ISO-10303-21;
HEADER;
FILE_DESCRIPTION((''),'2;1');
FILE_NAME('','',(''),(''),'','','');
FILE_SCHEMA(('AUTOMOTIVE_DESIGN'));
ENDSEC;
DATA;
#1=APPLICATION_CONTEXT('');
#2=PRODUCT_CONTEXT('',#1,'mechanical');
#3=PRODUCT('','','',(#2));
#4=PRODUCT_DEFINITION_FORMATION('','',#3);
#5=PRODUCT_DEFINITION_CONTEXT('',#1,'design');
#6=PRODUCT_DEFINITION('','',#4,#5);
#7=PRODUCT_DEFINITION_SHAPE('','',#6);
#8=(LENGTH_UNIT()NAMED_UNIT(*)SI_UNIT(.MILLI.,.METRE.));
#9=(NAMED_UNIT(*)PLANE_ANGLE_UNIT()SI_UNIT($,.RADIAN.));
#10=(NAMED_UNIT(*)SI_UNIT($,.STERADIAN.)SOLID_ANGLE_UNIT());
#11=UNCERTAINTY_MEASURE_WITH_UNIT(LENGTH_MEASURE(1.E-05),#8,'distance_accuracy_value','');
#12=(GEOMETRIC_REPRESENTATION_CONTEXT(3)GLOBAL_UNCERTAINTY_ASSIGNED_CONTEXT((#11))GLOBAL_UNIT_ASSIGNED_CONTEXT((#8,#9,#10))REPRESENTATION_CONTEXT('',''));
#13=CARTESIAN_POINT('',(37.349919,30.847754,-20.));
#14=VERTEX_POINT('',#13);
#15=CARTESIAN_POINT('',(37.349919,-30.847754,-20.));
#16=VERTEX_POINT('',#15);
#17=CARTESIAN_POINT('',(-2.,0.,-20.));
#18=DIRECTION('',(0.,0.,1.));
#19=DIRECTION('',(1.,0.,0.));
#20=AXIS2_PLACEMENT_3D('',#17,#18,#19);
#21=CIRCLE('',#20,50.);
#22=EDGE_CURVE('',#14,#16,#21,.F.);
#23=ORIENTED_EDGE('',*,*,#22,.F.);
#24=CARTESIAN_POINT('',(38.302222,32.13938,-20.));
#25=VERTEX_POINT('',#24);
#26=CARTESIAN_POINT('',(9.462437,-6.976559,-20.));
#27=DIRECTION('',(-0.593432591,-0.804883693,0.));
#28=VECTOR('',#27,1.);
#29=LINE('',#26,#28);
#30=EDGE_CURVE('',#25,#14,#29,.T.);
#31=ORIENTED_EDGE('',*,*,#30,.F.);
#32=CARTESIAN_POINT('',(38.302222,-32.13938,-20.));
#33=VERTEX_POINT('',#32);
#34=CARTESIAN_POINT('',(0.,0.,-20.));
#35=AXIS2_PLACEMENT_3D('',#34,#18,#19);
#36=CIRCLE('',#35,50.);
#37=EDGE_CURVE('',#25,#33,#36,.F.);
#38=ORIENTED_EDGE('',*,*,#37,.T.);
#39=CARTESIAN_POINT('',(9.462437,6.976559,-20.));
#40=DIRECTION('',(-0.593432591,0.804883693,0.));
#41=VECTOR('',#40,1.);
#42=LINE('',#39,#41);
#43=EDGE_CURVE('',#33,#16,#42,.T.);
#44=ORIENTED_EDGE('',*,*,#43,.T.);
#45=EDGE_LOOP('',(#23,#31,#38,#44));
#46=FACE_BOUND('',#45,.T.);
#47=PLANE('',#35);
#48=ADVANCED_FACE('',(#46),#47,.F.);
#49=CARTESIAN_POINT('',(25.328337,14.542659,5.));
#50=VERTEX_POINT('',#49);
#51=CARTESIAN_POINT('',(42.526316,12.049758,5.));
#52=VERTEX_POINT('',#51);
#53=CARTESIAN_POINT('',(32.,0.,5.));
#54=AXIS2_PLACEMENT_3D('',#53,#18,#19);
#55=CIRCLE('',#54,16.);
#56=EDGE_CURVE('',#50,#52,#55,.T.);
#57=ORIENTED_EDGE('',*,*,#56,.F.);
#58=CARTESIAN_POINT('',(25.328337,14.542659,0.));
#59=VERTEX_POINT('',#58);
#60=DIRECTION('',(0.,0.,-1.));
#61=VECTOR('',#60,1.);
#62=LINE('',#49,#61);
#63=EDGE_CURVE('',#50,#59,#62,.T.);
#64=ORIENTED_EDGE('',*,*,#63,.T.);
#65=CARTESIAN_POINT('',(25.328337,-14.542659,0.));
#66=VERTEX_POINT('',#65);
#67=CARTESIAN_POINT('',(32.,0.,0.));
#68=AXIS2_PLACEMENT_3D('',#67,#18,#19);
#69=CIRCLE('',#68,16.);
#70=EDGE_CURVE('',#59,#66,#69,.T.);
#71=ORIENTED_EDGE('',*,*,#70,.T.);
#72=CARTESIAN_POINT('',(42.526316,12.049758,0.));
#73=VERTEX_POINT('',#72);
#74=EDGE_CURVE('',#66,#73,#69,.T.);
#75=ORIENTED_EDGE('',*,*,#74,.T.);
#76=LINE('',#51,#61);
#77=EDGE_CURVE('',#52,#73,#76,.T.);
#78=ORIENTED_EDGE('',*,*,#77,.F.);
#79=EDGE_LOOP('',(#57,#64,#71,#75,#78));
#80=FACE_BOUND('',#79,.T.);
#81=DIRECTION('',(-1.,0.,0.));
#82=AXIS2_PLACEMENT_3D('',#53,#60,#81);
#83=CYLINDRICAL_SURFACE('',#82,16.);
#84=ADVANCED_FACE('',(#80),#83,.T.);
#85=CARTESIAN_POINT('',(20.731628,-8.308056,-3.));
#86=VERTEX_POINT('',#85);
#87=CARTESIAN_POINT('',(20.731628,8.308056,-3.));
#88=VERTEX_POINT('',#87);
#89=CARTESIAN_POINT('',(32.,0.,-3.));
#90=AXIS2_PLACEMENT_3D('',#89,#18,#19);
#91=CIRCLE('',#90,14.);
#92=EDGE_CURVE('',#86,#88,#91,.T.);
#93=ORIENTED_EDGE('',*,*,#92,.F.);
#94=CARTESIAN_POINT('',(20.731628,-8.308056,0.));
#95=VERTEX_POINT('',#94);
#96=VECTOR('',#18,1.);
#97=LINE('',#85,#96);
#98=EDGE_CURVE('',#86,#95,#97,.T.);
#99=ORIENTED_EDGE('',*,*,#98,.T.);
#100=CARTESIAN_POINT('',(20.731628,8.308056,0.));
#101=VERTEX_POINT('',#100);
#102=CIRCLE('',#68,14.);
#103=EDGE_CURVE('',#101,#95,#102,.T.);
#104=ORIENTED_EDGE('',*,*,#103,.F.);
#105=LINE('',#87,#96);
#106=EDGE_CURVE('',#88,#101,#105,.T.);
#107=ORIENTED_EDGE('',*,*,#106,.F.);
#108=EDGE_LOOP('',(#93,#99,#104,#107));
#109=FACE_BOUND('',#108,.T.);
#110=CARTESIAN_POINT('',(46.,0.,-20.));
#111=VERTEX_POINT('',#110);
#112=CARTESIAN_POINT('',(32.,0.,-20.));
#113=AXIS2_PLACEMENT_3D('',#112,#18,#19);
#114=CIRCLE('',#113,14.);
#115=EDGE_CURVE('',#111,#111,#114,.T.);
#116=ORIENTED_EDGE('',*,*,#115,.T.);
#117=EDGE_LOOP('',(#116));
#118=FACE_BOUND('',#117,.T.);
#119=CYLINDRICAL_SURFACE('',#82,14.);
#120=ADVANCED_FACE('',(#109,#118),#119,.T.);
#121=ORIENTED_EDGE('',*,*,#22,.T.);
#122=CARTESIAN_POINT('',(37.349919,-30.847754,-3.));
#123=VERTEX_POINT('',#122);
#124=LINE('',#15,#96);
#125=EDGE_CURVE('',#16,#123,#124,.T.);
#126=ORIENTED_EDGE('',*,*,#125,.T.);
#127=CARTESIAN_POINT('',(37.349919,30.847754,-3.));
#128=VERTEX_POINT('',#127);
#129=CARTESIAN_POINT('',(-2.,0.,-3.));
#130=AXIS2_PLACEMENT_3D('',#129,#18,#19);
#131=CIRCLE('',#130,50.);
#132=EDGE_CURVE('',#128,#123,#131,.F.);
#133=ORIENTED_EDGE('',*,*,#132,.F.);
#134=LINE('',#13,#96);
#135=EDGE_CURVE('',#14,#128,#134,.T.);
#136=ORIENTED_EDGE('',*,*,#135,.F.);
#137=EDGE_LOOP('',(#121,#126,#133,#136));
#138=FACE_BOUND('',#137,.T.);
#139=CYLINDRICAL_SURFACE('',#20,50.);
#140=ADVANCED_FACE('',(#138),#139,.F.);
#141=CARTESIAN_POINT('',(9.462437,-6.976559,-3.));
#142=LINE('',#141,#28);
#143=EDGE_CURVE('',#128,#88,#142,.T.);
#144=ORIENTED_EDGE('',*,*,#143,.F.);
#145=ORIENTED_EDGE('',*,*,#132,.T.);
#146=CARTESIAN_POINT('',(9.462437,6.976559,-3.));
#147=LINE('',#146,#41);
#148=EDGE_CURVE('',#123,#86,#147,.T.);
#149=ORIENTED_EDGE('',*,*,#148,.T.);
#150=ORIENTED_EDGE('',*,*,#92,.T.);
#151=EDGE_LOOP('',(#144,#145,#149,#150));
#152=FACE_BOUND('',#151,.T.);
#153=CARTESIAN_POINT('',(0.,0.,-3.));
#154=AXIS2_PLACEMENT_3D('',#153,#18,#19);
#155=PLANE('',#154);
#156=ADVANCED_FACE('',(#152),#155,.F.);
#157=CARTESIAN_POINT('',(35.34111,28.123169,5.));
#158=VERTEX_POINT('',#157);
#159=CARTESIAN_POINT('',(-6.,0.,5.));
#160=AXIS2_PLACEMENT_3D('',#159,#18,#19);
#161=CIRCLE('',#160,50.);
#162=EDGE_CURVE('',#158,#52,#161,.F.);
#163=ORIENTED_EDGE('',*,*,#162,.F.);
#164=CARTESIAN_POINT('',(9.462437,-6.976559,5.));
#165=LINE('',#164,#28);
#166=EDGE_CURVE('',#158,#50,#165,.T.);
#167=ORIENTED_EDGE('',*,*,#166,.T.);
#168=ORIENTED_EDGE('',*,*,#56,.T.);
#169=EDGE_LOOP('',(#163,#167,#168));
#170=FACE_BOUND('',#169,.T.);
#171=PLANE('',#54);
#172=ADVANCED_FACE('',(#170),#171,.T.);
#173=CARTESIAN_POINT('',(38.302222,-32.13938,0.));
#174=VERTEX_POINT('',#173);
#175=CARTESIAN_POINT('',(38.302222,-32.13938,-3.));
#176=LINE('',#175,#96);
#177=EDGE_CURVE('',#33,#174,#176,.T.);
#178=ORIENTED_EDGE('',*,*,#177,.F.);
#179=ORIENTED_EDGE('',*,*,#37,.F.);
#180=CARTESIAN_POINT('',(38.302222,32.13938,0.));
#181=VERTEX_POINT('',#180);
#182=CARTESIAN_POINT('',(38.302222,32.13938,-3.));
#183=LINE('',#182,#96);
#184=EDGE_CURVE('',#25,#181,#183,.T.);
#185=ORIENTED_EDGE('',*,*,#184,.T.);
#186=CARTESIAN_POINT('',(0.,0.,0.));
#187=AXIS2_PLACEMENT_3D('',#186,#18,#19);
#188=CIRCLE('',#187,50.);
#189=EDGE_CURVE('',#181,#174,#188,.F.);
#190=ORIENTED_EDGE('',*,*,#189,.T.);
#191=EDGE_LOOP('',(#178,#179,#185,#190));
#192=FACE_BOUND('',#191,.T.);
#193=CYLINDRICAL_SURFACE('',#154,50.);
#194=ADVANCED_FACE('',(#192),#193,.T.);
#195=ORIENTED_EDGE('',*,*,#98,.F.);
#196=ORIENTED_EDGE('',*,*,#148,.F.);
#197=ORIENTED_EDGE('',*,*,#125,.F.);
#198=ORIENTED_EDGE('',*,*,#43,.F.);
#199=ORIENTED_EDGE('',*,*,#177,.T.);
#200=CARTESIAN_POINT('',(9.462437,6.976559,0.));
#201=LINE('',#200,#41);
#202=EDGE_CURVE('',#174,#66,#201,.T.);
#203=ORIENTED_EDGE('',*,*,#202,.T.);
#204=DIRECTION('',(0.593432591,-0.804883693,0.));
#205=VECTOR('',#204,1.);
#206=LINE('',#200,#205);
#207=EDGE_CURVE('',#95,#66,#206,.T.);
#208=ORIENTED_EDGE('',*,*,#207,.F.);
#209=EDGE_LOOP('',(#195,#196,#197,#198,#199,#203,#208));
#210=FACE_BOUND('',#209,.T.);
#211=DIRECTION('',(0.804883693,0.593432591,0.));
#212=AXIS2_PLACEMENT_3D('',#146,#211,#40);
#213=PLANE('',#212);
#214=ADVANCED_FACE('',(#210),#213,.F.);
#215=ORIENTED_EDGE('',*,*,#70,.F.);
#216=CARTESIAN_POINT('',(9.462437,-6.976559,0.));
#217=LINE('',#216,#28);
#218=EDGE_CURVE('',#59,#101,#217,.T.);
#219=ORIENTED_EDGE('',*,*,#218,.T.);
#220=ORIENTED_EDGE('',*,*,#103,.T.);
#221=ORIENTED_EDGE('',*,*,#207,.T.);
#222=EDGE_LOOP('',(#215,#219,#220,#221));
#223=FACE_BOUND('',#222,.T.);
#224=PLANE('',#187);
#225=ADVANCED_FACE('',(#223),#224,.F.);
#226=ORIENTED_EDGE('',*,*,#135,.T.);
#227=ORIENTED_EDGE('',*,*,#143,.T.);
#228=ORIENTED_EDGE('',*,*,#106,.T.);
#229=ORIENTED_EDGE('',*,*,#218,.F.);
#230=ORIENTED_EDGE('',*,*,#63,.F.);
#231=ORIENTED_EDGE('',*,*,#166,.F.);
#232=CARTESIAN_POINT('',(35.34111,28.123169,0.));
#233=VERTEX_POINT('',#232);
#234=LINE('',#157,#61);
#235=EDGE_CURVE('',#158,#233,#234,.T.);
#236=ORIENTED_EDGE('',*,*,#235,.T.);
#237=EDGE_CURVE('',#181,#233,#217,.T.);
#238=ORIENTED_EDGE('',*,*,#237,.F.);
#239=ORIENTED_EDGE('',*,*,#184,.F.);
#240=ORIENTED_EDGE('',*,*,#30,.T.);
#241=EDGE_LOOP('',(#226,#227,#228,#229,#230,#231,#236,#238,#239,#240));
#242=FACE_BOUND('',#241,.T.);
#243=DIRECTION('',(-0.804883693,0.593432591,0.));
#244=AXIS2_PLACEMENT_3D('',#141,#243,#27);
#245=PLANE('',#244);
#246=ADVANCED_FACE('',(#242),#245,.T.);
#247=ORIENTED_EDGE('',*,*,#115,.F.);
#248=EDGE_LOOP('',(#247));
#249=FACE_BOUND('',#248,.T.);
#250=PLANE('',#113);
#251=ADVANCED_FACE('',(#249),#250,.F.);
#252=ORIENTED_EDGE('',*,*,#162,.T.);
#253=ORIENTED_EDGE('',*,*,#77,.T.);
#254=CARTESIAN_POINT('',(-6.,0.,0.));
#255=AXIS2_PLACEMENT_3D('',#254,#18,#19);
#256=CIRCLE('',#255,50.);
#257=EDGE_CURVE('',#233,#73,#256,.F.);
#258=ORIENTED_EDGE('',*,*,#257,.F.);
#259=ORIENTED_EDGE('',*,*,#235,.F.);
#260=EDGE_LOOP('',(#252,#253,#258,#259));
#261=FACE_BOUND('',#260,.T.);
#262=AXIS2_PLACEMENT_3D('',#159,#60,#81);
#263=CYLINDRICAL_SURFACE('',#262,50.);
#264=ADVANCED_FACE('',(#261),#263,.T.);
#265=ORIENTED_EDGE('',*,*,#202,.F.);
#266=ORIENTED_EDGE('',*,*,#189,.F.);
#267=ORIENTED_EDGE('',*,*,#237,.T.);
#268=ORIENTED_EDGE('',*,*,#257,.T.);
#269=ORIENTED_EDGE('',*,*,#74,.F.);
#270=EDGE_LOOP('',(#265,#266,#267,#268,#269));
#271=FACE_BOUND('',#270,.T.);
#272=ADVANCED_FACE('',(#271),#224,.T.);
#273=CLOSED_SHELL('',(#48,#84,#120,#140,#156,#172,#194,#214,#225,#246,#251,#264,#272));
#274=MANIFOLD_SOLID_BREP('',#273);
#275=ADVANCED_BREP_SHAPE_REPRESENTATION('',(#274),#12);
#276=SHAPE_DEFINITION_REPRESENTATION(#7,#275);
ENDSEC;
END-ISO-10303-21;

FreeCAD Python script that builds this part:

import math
import FreeCAD as App
import Part
import Sketcher

V = App.Vector
Q = App.Units.Quantity

doc = App.newDocument("Part")
params = doc.addObject("Spreadsheet::Sheet", "Params")
for row, (alias, value) in enumerate([
    ("sketch1_diameter", "28 mm"),
    ("pad1_length", "5 mm"),
    ("sketch2_radius", "14 mm"),
    ("sketch2_radius2", "50 mm"),
    ("pad2_length", "3 mm"),
    ("sketch3_radius", "50 mm"),
    ("pad3_length", "20 mm"),
    ("sketch4_diameter", "28 mm"),
    ("pad4_length", "20 mm"),
    ("sketch5_radius", "16 mm"),
    ("sketch5_radius2", "50 mm"),
    ("pad5_length", "5 mm"),
], start=1):
    params.set(f"A{row}", alias)
    params.set(f"B{row}", "=" + value)
    params.setAlias(f"B{row}", alias)

body = doc.addObject("PartDesign::Body", "Body")

sketch1 = doc.addObject("Sketcher::SketchObject", "Sketch")
body.addObject(sketch1)
sketch1.AttachmentSupport = (doc.XY_Plane, [""])
sketch1.MapMode = "FlatFace"
sketch1.addGeometry(Part.Circle(V(32, 0, 0), V(0, 0, 1), 14), False)
sketch1.addConstraint(Sketcher.Constraint("PointOnObject", 0, 3, -1))
sketch1.addConstraint(Sketcher.Constraint("Diameter", 0, Q("28 mm")))
sketch1.addConstraint(Sketcher.Constraint("DistanceX", -1, 1, 0, 3, Q("32 mm")))
sketch1.setExpression("Constraints[1]", "Params.sketch1_diameter")
pad1 = doc.addObject("PartDesign::Pad", "Pad")
body.addObject(pad1)
pad1.Profile = sketch1
pad1.setExpression("Length", "Params.pad1_length")

sketch2 = doc.addObject("Sketcher::SketchObject", "Sketch001")
body.addObject(sketch2)
sketch2.AttachmentSupport = (doc.XY_Plane, [""])
sketch2.MapMode = "FlatFace"
sketch2.AttachmentOffset = App.Placement(V(0, 0, -3), App.Rotation())
sketch2.addGeometry(Part.LineSegment(V(37.3, 30.8, 0), V(20.7, 8.3, 0)), False)
sketch2.addGeometry(Part.ArcOfCircle(Part.Circle(V(32, 0, 0), V(0, 0, 1), 14), math.radians(144), math.radians(216)), False)
sketch2.addGeometry(Part.LineSegment(V(20.7, -8.3, 0), V(37.3, -30.8, 0)), False)
sketch2.addGeometry(Part.LineSegment(V(37.3, -30.8, 0), V(38.3, -32.1, 0)), False)
sketch2.addGeometry(Part.ArcOfCircle(Part.Circle(V(0, 0, 0), V(0, 0, 1), 50), math.radians(-40), math.radians(40)), False)
sketch2.addGeometry(Part.LineSegment(V(38.3, 32.1, 0), V(37.3, 30.8, 0)), False)
sketch2.addConstraint(Sketcher.Constraint("Tangent", 0, 2, 1, 1))
sketch2.addConstraint(Sketcher.Constraint("Tangent", 1, 2, 2, 1))
sketch2.addConstraint(Sketcher.Constraint("Coincident", 2, 2, 3, 1))
sketch2.addConstraint(Sketcher.Constraint("Coincident", 3, 2, 4, 1))
sketch2.addConstraint(Sketcher.Constraint("Coincident", 4, 2, 5, 1))
sketch2.addConstraint(Sketcher.Constraint("Coincident", 5, 2, 0, 1))
sketch2.addConstraint(Sketcher.Constraint("Coincident", 4, 3, -1, 1))
sketch2.addConstraint(Sketcher.Constraint("Symmetric", 0, 2, 1, 2, -1))
sketch2.addConstraint(Sketcher.Constraint("Parallel", 2, 3))
sketch2.addConstraint(Sketcher.Constraint("Parallel", 0, 5))
sketch2.addConstraint(Sketcher.Constraint("Vertical", 2, 2, 5, 2))
sketch2.addConstraint(Sketcher.Constraint("Radius", 1, Q("14 mm")))
sketch2.addConstraint(Sketcher.Constraint("Radius", 4, Q("50 mm")))
sketch2.addConstraint(Sketcher.Constraint("DistanceX", -1, 1, 1, 3, Q("32 mm")))
sketch2.addConstraint(Sketcher.Constraint("Distance", 0, Q("28.00367 mm")))
sketch2.addConstraint(Sketcher.Constraint("DistanceX", -1, 1, 0, 2, Q("20.731628 mm")))
sketch2.setExpression("Constraints[11]", "Params.sketch2_radius")
sketch2.setExpression("Constraints[12]", "Params.sketch2_radius2")
pad2 = doc.addObject("PartDesign::Pad", "Pad001")
body.addObject(pad2)
pad2.Profile = sketch2
pad2.setExpression("Length", "Params.pad2_length")

sketch3 = doc.addObject("Sketcher::SketchObject", "Sketch002")
body.addObject(sketch3)
sketch3.AttachmentSupport = (doc.XY_Plane, [""])
sketch3.MapMode = "FlatFace"
sketch3.AttachmentOffset = App.Placement(V(0, 0, -20), App.Rotation())
sketch3.addGeometry(Part.ArcOfCircle(Part.Circle(V(0, 0, 0), V(0, 0, 1), 50), math.radians(-40), math.radians(40)), False)
sketch3.addGeometry(Part.LineSegment(V(38.3, 32.1, 0), V(37.3, 30.8, 0)), False)
sketch3.addGeometry(Part.ArcOfCircle(Part.Circle(V(-2, 0, 0), V(0, 0, 1), 50), math.radians(-38), math.radians(38)), False)
sketch3.addGeometry(Part.LineSegment(V(37.3, -30.8, 0), V(38.3, -32.1, 0)), False)
sketch3.addConstraint(Sketcher.Constraint("Coincident", 0, 2, 1, 1))
sketch3.addConstraint(Sketcher.Constraint("Coincident", 1, 2, 2, 2))
sketch3.addConstraint(Sketcher.Constraint("Coincident", 2, 1, 3, 1))
sketch3.addConstraint(Sketcher.Constraint("Coincident", 3, 2, 0, 1))
sketch3.addConstraint(Sketcher.Constraint("Coincident", 0, 3, -1, 1))
sketch3.addConstraint(Sketcher.Constraint("Equal", 0, 2))
sketch3.addConstraint(Sketcher.Constraint("Symmetric", 1, 2, 2, 1, -1))
sketch3.addConstraint(Sketcher.Constraint("Vertical", 0, 2, 3, 2))
sketch3.addConstraint(Sketcher.Constraint("Radius", 0, Q("50 mm")))
sketch3.addConstraint(Sketcher.Constraint("DistanceX", 2, 3, -1, 1, Q("2 mm")))
sketch3.addConstraint(Sketcher.Constraint("DistanceY", -1, 1, 0, 2, Q("32.13938 mm")))
sketch3.addConstraint(Sketcher.Constraint("DistanceX", -1, 1, 1, 2, Q("37.349919 mm")))
sketch3.setExpression("Constraints[8]", "Params.sketch3_radius")
pad3 = doc.addObject("PartDesign::Pad", "Pad002")
body.addObject(pad3)
pad3.Profile = sketch3
pad3.setExpression("Length", "Params.pad3_length")

sketch4 = doc.addObject("Sketcher::SketchObject", "Sketch003")
body.addObject(sketch4)
sketch4.AttachmentSupport = (doc.XY_Plane, [""])
sketch4.MapMode = "FlatFace"
sketch4.AttachmentOffset = App.Placement(V(0, 0, -20), App.Rotation())
sketch4.addGeometry(Part.Circle(V(32, 0, 0), V(0, 0, 1), 14), False)
sketch4.addConstraint(Sketcher.Constraint("PointOnObject", 0, 3, -1))
sketch4.addConstraint(Sketcher.Constraint("Diameter", 0, Q("28 mm")))
sketch4.addConstraint(Sketcher.Constraint("DistanceX", -1, 1, 0, 3, Q("32 mm")))
sketch4.setExpression("Constraints[1]", "Params.sketch4_diameter")
pad4 = doc.addObject("PartDesign::Pad", "Pad003")
body.addObject(pad4)
pad4.Profile = sketch4
pad4.setExpression("Length", "Params.pad4_length")

sketch5 = doc.addObject("Sketcher::SketchObject", "Sketch004")
body.addObject(sketch5)
sketch5.AttachmentSupport = (doc.XY_Plane, [""])
sketch5.MapMode = "FlatFace"
sketch5.addGeometry(Part.ArcOfCircle(Part.Circle(V(32, 0, 0), V(0, 0, 1), 16), math.radians(-115), math.radians(0)), False)
sketch5.addGeometry(Part.ArcOfCircle(Part.Circle(V(32, 0, 0), V(0, 0, 1), 16), math.radians(0), math.radians(49)), False)
sketch5.addGeometry(Part.ArcOfCircle(Part.Circle(V(-6, 0, 0), V(0, 0, 1), 50), math.radians(14), math.radians(34)), False)
sketch5.addGeometry(Part.LineSegment(V(35, 28, 0), V(25, 15, 0)), False)
sketch5.addGeometry(Part.ArcOfCircle(Part.Circle(V(32, 0, 0), V(0, 0, 1), 16), math.radians(115), math.radians(245)), False)
sketch5.addConstraint(Sketcher.Constraint("Tangent", 0, 2, 1, 1))
sketch5.addConstraint(Sketcher.Constraint("Coincident", 1, 2, 2, 1))
sketch5.addConstraint(Sketcher.Constraint("Coincident", 2, 2, 3, 1))
sketch5.addConstraint(Sketcher.Constraint("Coincident", 3, 2, 4, 1))
sketch5.addConstraint(Sketcher.Constraint("Tangent", 4, 2, 0, 1))
sketch5.addConstraint(Sketcher.Constraint("Equal", 0, 1))
sketch5.addConstraint(Sketcher.Constraint("Equal", 1, 4))
sketch5.addConstraint(Sketcher.Constraint("Symmetric", 3, 2, 4, 2, -1))
sketch5.addConstraint(Sketcher.Constraint("PointOnObject", 2, 3, -1))
sketch5.addConstraint(Sketcher.Constraint("PointOnObject", 0, 2, -1))
sketch5.addConstraint(Sketcher.Constraint("Radius", 0, Q("16 mm")))
sketch5.addConstraint(Sketcher.Constraint("Radius", 2, Q("50 mm")))
sketch5.addConstraint(Sketcher.Constraint("DistanceX", -1, 1, 0, 3, Q("32 mm")))
sketch5.addConstraint(Sketcher.Constraint("DistanceX", 2, 3, -1, 1, Q("6 mm")))
sketch5.addConstraint(Sketcher.Constraint("DistanceY", 1, 2, 3, 2, Q("2.4929 mm")))
sketch5.addConstraint(Sketcher.Constraint("DistanceX", -1, 1, 2, 2, Q("35.34111 mm")))
sketch5.setExpression("Constraints[10]", "Params.sketch5_radius")
sketch5.setExpression("Constraints[11]", "Params.sketch5_radius2")
pad5 = doc.addObject("PartDesign::Pad", "Pad004")
body.addObject(pad5)
pad5.Profile = sketch5
pad5.setExpression("Length", "Params.pad5_length")

doc.recompute()
